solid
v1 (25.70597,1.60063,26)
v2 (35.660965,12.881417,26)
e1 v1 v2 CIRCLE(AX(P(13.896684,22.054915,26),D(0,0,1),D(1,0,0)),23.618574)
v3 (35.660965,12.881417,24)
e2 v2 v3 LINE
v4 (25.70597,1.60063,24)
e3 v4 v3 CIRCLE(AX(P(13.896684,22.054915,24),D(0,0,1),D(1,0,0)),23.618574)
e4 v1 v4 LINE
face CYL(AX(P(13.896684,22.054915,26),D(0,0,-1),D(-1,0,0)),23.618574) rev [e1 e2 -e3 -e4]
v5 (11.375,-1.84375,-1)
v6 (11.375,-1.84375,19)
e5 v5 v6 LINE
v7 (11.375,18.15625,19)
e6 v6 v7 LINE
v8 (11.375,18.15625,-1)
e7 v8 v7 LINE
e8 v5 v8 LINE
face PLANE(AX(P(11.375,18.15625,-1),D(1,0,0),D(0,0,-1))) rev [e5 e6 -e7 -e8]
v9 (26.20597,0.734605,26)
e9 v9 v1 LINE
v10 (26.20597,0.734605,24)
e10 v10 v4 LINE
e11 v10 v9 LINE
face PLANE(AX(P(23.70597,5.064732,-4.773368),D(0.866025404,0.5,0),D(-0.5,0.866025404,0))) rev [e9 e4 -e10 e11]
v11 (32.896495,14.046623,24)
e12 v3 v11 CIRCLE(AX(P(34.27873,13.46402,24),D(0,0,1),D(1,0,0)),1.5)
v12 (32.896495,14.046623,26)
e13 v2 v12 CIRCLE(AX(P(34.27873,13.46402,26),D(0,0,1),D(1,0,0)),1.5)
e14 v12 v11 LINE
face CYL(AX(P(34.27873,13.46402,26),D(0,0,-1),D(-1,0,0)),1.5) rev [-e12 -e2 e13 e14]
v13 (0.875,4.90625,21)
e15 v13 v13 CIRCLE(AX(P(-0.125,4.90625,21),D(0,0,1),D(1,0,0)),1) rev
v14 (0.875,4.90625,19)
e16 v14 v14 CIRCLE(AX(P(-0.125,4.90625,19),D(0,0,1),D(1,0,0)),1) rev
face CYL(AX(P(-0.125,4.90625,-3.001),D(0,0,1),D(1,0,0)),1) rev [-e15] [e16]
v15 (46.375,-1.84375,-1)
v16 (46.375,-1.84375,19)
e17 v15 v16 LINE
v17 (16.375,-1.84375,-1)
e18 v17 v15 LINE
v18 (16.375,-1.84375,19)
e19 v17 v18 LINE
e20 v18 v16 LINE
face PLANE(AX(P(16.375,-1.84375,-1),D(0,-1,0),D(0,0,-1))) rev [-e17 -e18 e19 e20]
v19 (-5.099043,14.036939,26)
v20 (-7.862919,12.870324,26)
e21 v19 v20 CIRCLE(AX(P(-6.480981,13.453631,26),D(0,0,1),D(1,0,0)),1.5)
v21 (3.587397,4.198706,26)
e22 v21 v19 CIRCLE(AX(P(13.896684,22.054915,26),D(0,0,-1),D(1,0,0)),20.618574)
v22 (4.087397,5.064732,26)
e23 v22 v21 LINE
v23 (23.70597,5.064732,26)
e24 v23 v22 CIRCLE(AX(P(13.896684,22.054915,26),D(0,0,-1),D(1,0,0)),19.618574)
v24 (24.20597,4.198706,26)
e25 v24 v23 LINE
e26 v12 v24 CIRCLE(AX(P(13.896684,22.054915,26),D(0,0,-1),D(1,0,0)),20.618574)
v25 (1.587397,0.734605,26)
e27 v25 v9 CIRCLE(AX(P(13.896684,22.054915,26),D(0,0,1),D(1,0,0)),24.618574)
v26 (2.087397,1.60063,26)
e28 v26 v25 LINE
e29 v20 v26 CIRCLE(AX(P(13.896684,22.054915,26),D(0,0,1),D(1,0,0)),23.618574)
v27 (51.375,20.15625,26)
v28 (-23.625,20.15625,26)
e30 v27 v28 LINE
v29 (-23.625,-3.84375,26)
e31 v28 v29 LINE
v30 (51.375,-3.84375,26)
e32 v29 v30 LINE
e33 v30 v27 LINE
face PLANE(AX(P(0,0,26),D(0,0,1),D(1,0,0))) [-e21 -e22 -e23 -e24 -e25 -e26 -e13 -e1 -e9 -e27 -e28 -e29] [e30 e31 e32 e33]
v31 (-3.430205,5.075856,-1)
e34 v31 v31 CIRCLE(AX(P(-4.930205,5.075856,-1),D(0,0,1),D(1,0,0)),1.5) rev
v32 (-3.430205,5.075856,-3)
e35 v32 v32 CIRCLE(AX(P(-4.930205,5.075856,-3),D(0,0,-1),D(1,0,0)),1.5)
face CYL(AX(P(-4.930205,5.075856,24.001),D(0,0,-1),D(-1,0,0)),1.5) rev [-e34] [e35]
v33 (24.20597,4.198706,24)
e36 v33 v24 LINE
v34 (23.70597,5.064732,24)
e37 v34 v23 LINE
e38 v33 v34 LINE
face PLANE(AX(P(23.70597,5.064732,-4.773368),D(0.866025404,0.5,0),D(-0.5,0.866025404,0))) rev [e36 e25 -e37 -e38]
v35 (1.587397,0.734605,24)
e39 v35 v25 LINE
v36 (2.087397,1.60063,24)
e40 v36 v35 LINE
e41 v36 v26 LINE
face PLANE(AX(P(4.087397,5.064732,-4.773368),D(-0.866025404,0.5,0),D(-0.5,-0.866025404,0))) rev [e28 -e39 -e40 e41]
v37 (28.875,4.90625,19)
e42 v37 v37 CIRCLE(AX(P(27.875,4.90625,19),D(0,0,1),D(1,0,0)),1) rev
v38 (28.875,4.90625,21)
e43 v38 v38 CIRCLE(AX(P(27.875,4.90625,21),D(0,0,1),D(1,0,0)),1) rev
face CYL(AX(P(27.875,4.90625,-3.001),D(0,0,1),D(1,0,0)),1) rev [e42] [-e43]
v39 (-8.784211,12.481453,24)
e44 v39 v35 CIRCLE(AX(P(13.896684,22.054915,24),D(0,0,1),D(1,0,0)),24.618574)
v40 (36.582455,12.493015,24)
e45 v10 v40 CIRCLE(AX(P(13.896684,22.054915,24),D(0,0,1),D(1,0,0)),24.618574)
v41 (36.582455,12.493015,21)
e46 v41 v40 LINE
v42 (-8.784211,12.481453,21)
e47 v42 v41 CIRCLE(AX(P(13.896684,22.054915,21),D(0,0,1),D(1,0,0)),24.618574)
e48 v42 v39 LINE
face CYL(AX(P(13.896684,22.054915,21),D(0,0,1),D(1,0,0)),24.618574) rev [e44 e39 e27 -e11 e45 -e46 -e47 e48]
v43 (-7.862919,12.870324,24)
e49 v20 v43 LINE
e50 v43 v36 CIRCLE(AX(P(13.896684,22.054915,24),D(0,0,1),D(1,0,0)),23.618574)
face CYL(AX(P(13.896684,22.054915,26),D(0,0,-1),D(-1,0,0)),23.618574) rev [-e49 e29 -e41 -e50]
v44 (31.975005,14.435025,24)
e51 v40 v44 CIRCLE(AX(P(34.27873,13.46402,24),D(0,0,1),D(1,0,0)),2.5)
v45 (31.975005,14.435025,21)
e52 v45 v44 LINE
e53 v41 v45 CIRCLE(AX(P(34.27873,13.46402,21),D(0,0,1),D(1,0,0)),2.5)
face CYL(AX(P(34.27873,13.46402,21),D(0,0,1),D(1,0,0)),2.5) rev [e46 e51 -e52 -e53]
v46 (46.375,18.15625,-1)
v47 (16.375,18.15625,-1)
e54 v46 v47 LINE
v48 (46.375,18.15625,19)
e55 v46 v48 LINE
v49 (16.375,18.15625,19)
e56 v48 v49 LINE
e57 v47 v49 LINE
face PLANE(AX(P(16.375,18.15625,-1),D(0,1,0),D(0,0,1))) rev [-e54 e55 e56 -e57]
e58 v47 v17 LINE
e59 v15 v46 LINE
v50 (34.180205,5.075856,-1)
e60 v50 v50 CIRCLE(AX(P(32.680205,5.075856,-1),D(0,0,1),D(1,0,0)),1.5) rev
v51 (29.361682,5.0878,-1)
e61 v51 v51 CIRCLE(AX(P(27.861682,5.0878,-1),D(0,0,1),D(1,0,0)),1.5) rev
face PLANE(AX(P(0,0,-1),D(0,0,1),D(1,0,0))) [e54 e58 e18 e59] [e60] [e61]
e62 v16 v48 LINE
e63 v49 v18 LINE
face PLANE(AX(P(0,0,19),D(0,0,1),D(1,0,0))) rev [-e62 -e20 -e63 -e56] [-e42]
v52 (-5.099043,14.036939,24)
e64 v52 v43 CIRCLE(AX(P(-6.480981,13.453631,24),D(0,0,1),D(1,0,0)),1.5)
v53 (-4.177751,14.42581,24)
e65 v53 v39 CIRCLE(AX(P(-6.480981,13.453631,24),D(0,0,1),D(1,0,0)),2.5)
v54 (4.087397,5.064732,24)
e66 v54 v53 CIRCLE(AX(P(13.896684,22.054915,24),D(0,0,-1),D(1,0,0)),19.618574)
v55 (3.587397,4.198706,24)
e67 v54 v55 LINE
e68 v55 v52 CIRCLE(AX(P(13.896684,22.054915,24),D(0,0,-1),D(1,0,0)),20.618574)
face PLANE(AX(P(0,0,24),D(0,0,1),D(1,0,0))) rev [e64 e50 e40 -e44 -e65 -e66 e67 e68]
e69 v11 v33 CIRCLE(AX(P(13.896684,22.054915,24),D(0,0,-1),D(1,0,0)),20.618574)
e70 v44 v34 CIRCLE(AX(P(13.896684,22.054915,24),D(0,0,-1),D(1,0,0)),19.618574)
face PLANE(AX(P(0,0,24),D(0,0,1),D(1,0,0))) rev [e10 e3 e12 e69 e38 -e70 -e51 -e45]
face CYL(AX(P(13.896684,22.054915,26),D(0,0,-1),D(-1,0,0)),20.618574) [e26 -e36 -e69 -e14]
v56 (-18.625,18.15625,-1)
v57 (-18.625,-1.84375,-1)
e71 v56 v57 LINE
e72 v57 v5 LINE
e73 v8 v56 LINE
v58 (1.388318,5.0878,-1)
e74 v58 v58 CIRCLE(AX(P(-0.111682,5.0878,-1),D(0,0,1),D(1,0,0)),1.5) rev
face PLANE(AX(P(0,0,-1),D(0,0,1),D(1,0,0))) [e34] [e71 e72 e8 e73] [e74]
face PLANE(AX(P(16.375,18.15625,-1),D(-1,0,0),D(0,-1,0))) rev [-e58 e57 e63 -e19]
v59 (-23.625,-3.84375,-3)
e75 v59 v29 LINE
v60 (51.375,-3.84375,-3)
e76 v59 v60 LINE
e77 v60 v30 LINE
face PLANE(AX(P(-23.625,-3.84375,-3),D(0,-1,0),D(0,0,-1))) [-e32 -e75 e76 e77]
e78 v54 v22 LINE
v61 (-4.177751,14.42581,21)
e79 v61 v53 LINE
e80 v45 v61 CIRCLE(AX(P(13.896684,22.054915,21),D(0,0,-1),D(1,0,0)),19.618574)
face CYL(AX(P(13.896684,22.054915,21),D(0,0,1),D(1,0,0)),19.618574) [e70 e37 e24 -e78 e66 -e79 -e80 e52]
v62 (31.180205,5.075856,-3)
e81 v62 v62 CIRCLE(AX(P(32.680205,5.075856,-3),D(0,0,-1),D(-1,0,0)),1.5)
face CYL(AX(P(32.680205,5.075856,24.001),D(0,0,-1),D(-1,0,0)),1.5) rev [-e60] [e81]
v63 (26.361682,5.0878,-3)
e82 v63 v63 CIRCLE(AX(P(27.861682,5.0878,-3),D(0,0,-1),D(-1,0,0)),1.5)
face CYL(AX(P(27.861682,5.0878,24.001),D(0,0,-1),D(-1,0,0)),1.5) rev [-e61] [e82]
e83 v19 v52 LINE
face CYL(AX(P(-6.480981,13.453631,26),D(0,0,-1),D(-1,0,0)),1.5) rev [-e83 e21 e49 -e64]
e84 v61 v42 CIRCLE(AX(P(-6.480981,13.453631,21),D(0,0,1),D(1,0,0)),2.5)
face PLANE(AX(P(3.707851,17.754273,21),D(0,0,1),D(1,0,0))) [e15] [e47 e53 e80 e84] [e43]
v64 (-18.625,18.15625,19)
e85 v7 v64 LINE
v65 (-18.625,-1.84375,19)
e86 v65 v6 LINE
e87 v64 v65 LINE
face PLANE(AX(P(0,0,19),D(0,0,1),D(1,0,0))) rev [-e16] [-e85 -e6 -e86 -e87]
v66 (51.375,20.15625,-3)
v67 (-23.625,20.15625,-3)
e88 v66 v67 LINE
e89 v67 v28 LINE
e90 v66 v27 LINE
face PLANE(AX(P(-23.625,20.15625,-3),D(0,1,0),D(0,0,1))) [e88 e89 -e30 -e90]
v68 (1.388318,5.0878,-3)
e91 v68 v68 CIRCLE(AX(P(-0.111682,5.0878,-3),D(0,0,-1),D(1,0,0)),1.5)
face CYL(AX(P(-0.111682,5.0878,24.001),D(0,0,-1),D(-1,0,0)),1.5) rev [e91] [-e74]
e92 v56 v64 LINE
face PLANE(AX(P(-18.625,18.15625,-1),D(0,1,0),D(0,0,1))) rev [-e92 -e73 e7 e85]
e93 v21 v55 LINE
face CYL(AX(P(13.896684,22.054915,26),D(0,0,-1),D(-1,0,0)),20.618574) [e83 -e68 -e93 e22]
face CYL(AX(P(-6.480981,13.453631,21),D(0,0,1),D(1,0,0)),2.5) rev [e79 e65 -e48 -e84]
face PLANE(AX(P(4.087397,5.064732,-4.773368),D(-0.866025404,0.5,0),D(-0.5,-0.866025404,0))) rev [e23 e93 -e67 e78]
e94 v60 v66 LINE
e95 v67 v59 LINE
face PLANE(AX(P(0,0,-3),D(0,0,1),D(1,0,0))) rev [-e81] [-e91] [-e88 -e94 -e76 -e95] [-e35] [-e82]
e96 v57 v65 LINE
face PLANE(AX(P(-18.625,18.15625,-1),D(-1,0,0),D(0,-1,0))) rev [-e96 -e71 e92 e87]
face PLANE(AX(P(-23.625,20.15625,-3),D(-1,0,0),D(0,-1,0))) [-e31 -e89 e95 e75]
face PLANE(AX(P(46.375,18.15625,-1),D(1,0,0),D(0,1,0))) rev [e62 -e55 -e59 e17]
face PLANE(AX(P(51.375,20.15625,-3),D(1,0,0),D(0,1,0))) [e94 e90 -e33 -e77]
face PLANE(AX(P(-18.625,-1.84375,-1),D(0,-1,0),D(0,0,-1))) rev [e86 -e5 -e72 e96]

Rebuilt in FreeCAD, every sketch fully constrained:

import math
import FreeCAD as App
import Part
import Sketcher
from FreeCAD import Vector
Q = App.Units.Quantity

doc = App.newDocument("Part")
body = doc.addObject("PartDesign::Body", "Body")

# Sketch on XY plane
sketch1 = body.newObject("Sketcher::SketchObject", "Sketch")
sketch1.AttachmentSupport = (doc.getObject("XY_Plane"), [""])
sketch1.MapMode = "FlatFace"
sketch1.addGeometry(Part.LineSegment(Vector(-24, 20, 0), Vector(-24, -4, 0)), False)
sketch1.addGeometry(Part.LineSegment(Vector(-24, -4, 0), Vector(51, -4, 0)), False)
sketch1.addGeometry(Part.LineSegment(Vector(51, -4, 0), Vector(51, 20, 0)), False)
sketch1.addGeometry(Part.LineSegment(Vector(51, 20, 0), Vector(-24, 20, 0)), False)
sketch1.addConstraint(Sketcher.Constraint("Coincident", 0, 2, 1, 1))
sketch1.addConstraint(Sketcher.Constraint("Coincident", 1, 2, 2, 1))
sketch1.addConstraint(Sketcher.Constraint("Coincident", 2, 2, 3, 1))
sketch1.addConstraint(Sketcher.Constraint("Coincident", 3, 2, 0, 1))
sketch1.addConstraint(Sketcher.Constraint("Vertical", 0))
sketch1.addConstraint(Sketcher.Constraint("Horizontal", 1))
sketch1.addConstraint(Sketcher.Constraint("Vertical", 2))
sketch1.addConstraint(Sketcher.Constraint("Horizontal", 3))
sketch1.addConstraint(Sketcher.Constraint("DistanceX", 1, 1, 1, 2, 75.0))
sketch1.addConstraint(Sketcher.Constraint("DistanceY", 0, 2, 0, 1, 24.0))
sketch1.addConstraint(Sketcher.Constraint("DistanceX", 0, 2, -1, 1, 23.625))
sketch1.addConstraint(Sketcher.Constraint("DistanceY", 0, 2, -1, 1, 3.84375))
pad1 = body.newObject("PartDesign::Pad", "Pad")
pad1.Profile = sketch1
pad1.Type = "TwoLengths"
pad1.Length = 24
pad1.Length2 = 3

# Sketch on XY plane
sketch2 = body.newObject("Sketcher::SketchObject", "Sketch001")
sketch2.AttachmentSupport = (doc.getObject("XY_Plane"), [""])
sketch2.MapMode = "FlatFace"
sketch2.AttachmentOffset = App.Placement(Vector(0, 0, 19), App.Rotation())
sketch2.addGeometry(Part.LineSegment(Vector(-19, 18, 0), Vector(-19, -2, 0)), False)
sketch2.addGeometry(Part.LineSegment(Vector(-19, -2, 0), Vector(11, -2, 0)), False)
sketch2.addGeometry(Part.LineSegment(Vector(11, -2, 0), Vector(11, 18, 0)), False)
sketch2.addGeometry(Part.LineSegment(Vector(11, 18, 0), Vector(-19, 18, 0)), False)
sketch2.addGeometry(Part.LineSegment(Vector(16, 18, 0), Vector(16, -2, 0)), False)
sketch2.addGeometry(Part.LineSegment(Vector(16, -2, 0), Vector(46, -2, 0)), False)
sketch2.addGeometry(Part.LineSegment(Vector(46, -2, 0), Vector(46, 18, 0)), False)
sketch2.addGeometry(Part.LineSegment(Vector(46, 18, 0), Vector(16, 18, 0)), False)
sketch2.addConstraint(Sketcher.Constraint("Coincident", 0, 2, 1, 1))
sketch2.addConstraint(Sketcher.Constraint("Coincident", 1, 2, 2, 1))
sketch2.addConstraint(Sketcher.Constraint("Coincident", 2, 2, 3, 1))
sketch2.addConstraint(Sketcher.Constraint("Coincident", 3, 2, 0, 1))
sketch2.addConstraint(Sketcher.Constraint("Coincident", 4, 2, 5, 1))
sketch2.addConstraint(Sketcher.Constraint("Coincident", 5, 2, 6, 1))
sketch2.addConstraint(Sketcher.Constraint("Coincident", 6, 2, 7, 1))
sketch2.addConstraint(Sketcher.Constraint("Coincident", 7, 2, 4, 1))
sketch2.addConstraint(Sketcher.Constraint("Vertical", 0))
sketch2.addConstraint(Sketcher.Constraint("Horizontal", 1))
sketch2.addConstraint(Sketcher.Constraint("Vertical", 2))
sketch2.addConstraint(Sketcher.Constraint("Horizontal", 3))
sketch2.addConstraint(Sketcher.Constraint("Vertical", 4))
sketch2.addConstraint(Sketcher.Constraint("Horizontal", 5))
sketch2.addConstraint(Sketcher.Constraint("Vertical", 6))
sketch2.addConstraint(Sketcher.Constraint("Horizontal", 7))
sketch2.addConstraint(Sketcher.Constraint("Horizontal", 1, 2, 4, 2))
sketch2.addConstraint(Sketcher.Constraint("Horizontal", 3, 2, 6, 2))
sketch2.addConstraint(Sketcher.Constraint("Equal", 3, 5))
sketch2.addConstraint(Sketcher.Constraint("DistanceX", 1, 1, 1, 2, 30.0))
sketch2.addConstraint(Sketcher.Constraint("DistanceY", 0, 2, 0, 1, 20.0))
sketch2.addConstraint(Sketcher.Constraint("DistanceX", 1, 2, 4, 2, 5.0))
sketch2.addConstraint(Sketcher.Constraint("DistanceX", 0, 2, -1, 1, 18.625))
sketch2.addConstraint(Sketcher.Constraint("DistanceY", 0, 2, -1, 1, 1.84375))
pocket1 = body.newObject("PartDesign::Pocket", "Pocket")
pocket1.Profile = sketch2
pocket1.Length = 20

# Sketch on XY plane
sketch3 = body.newObject("Sketcher::SketchObject", "Sketch002")
sketch3.AttachmentSupport = (doc.getObject("XY_Plane"), [""])
sketch3.MapMode = "FlatFace"
sketch3.AttachmentOffset = App.Placement(Vector(0, 0, 24), App.Rotation())
sketch3.addGeometry(Part.ArcOfCircle(Part.Circle(Vector(13.9, 22.1, 0), Vector(0, 0, 1), 24.6), math.radians(-157), math.radians(-23)), False)
sketch3.addGeometry(Part.ArcOfCircle(Part.Circle(Vector(34.3, 13.5, 0), Vector(0, 0, 1), 2.5), math.radians(-23), math.radians(157)), False)
sketch3.addGeometry(Part.ArcOfCircle(Part.Circle(Vector(13.9, 22.1, 0), Vector(0, 0, 1), 19.6), math.radians(-157), math.radians(-23)), False)
sketch3.addGeometry(Part.ArcOfCircle(Part.Circle(Vector(-6.5, 13.5, 0), Vector(0, 0, 1), 2.5), math.radians(23), math.radians(203)), False)
sketch3.addConstraint(Sketcher.Constraint("Tangent", 0, 2, 1, 1))
sketch3.addConstraint(Sketcher.Constraint("Tangent", 1, 2, 2, 2))
sketch3.addConstraint(Sketcher.Constraint("Tangent", 2, 1, 3, 1))
sketch3.addConstraint(Sketcher.Constraint("Tangent", 3, 2, 0, 1))
sketch3.addConstraint(Sketcher.Constraint("Coincident", 2, 3, 0, 3))
sketch3.addConstraint(Sketcher.Constraint("Radius", 1, 2.5))
sketch3.addConstraint(Sketcher.Constraint("Radius", 0, 24.618574))
sketch3.addConstraint(Sketcher.Constraint("DistanceY", 0, 2, 2, 3, 9.5619))
sketch3.addConstraint(Sketcher.Constraint("DistanceX", -1, 1, 1, 3, 34.27873))
sketch3.addConstraint(Sketcher.Constraint("DistanceY", -1, 1, 1, 3, 13.46402))
sketch3.addConstraint(Sketcher.Constraint("DistanceX", 3, 3, -1, 1, 6.480981))
pocket2 = body.newObject("PartDesign::Pocket", "Pocket001")
pocket2.Profile = sketch3
pocket2.Length = 3

# Sketch on XY plane
sketch4 = body.newObject("Sketcher::SketchObject", "Sketch003")
sketch4.AttachmentSupport = (doc.getObject("XY_Plane"), [""])
sketch4.MapMode = "FlatFace"
sketch4.AttachmentOffset = App.Placement(Vector(0, 0, 24), App.Rotation())
sketch4.addGeometry(Part.Circle(Vector(27.9, 4.9, 0), Vector(0, 0, 1), 1), False)
sketch4.addConstraint(Sketcher.Constraint("Diameter", 0, 2.0))
sketch4.addConstraint(Sketcher.Constraint("DistanceX", -1, 1, 0, 3, 27.875))
sketch4.addConstraint(Sketcher.Constraint("DistanceY", -1, 1, 0, 3, 4.90625))
pocket3 = body.newObject("PartDesign::Pocket", "Pocket002")
pocket3.Profile = sketch4
pocket3.Length = 5

# Sketch on XY plane
sketch5 = body.newObject("Sketcher::SketchObject", "Sketch004")
sketch5.AttachmentSupport = (doc.getObject("XY_Plane"), [""])
sketch5.MapMode = "FlatFace"
sketch5.AttachmentOffset = App.Placement(Vector(0, 0, 24), App.Rotation())
sketch5.addGeometry(Part.Circle(Vector(-0.1, 4.9, 0), Vector(0, 0, 1), 1), False)
sketch5.addConstraint(Sketcher.Constraint("Diameter", 0, 2.0))
sketch5.addConstraint(Sketcher.Constraint("DistanceX", 0, 3, -1, 1, 0.125))
sketch5.addConstraint(Sketcher.Constraint("DistanceY", -1, 1, 0, 3, 4.90625))
pocket4 = body.newObject("PartDesign::Pocket", "Pocket003")
pocket4.Profile = sketch5
pocket4.Length = 5

# Sketch on XY plane
sketch6 = body.newObject("Sketcher::SketchObject", "Sketch005")
sketch6.AttachmentSupport = (doc.getObject("XY_Plane"), [""])
sketch6.MapMode = "FlatFace"
sketch6.AttachmentOffset = App.Placement(Vector(0, 0, -3), App.Rotation())
sketch6.addGeometry(Part.Circle(Vector(32.7, 5.1, 0), Vector(0, 0, 1), 1.5), False)
sketch6.addConstraint(Sketcher.Constraint("Diameter", 0, 3.0))
sketch6.addConstraint(Sketcher.Constraint("DistanceX", -1, 1, 0, 3, 32.680205))
sketch6.addConstraint(Sketcher.Constraint("DistanceY", -1, 1, 0, 3, 5.075856))
pocket5 = body.newObject("PartDesign::Pocket", "Pocket004")
pocket5.Profile = sketch6
pocket5.Type = "UpToFirst"
pocket5.Reversed = True

# Sketch on XY plane
sketch7 = body.newObject("Sketcher::SketchObject", "Sketch006")
sketch7.AttachmentSupport = (doc.getObject("XY_Plane"), [""])
sketch7.MapMode = "FlatFace"
sketch7.AttachmentOffset = App.Placement(Vector(0, 0, -3), App.Rotation())
sketch7.addGeometry(Part.Circle(Vector(27.9, 5.1, 0), Vector(0, 0, 1), 1.5), False)
sketch7.addConstraint(Sketcher.Constraint("Diameter", 0, 3.0))
sketch7.addConstraint(Sketcher.Constraint("DistanceY", -1, 1, 0, 3, 5.0878))
sketch7.addConstraint(Sketcher.Constraint("DistanceX", -1, 1, 0, 3, 27.861682))
pocket6 = body.newObject("PartDesign::Pocket", "Pocket005")
pocket6.Profile = sketch7
pocket6.Type = "UpToFirst"
pocket6.Reversed = True

# Sketch on XY plane
sketch8 = body.newObject("Sketcher::SketchObject", "Sketch007")
sketch8.AttachmentSupport = (doc.getObject("XY_Plane"), [""])
sketch8.MapMode = "FlatFace"
sketch8.AttachmentOffset = App.Placement(Vector(0, 0, -3), App.Rotation())
sketch8.addGeometry(Part.Circle(Vector(-0.1, 5.1, 0), Vector(0, 0, 1), 1.5), False)
sketch8.addConstraint(Sketcher.Constraint("Diameter", 0, 3.0))
sketch8.addConstraint(Sketcher.Constraint("DistanceY", -1, 1, 0, 3, 5.0878))
sketch8.addConstraint(Sketcher.Constraint("DistanceX", 0, 3, -1, 1, 0.111682))
pocket7 = body.newObject("PartDesign::Pocket", "Pocket006")
pocket7.Profile = sketch8
pocket7.Type = "UpToFirst"
pocket7.Reversed = True

# Sketch on XY plane
sketch9 = body.newObject("Sketcher::SketchObject", "Sketch008")
sketch9.AttachmentSupport = (doc.getObject("XY_Plane"), [""])
sketch9.MapMode = "FlatFace"
sketch9.AttachmentOffset = App.Placement(Vector(0, 0, -3), App.Rotation())
sketch9.addGeometry(Part.Circle(Vector(-4.9, 5.1, 0), Vector(0, 0, 1), 1.5), False)
sketch9.addConstraint(Sketcher.Constraint("Diameter", 0, 3.0))
sketch9.addConstraint(Sketcher.Constraint("DistanceX", 0, 3, -1, 1, 4.930205))
sketch9.addConstraint(Sketcher.Constraint("DistanceY", -1, 1, 0, 3, 5.075856))
pocket8 = body.newObject("PartDesign::Pocket", "Pocket007")
pocket8.Profile = sketch9
pocket8.Type = "UpToFirst"
pocket8.Reversed = True

# Sketch on XY plane
sketch10 = body.newObject("Sketcher::SketchObject", "Sketch009")
sketch10.AttachmentSupport = (doc.getObject("XY_Plane"), [""])
sketch10.MapMode = "FlatFace"
sketch10.AttachmentOffset = App.Placement(Vector(0, 0, 24), App.Rotation())
sketch10.addGeometry(Part.LineSegment(Vector(-23.6, 20.2, 0), Vector(-23.6, -3.8, 0)), False)
sketch10.addGeometry(Part.LineSegment(Vector(-23.6, -3.8, 0), Vector(51.4, -3.8, 0)), False)
sketch10.addGeometry(Part.LineSegment(Vector(51.4, -3.8, 0), Vector(51.4, 20.2, 0)), False)
sketch10.addGeometry(Part.LineSegment(Vector(51.4, 20.2, 0), Vector(-23.6, 20.2, 0)), False)
sketch10.addGeometry(Part.ArcOfCircle(Part.Circle(Vector(13.9, 22.1, 0), Vector(0, 0, 1), 23.6), math.radians(-157), math.radians(-23)), False)
sketch10.addGeometry(Part.ArcOfCircle(Part.Circle(Vector(-6.5, 13.5, 0), Vector(0, 0, 1), 1.5), math.radians(23), math.radians(203)), False)
sketch10.addGeometry(Part.ArcOfCircle(Part.Circle(Vector(13.9, 22.1, 0), Vector(0, 0, 1), 20.6), math.radians(-157), math.radians(-23)), False)
sketch10.addGeometry(Part.ArcOfCircle(Part.Circle(Vector(34.3, 13.5, 0), Vector(0, 0, 1), 1.5), math.radians(-23), math.radians(157)), False)
sketch10.addConstraint(Sketcher.Constraint("Coincident", 0, 2, 1, 1))
sketch10.addConstraint(Sketcher.Constraint("Coincident", 1, 2, 2, 1))
sketch10.addConstraint(Sketcher.Constraint("Coincident", 2, 2, 3, 1))
sketch10.addConstraint(Sketcher.Constraint("Coincident", 3, 2, 0, 1))
sketch10.addConstraint(Sketcher.Constraint("Tangent", 4, 1, 5, 2))
sketch10.addConstraint(Sketcher.Constraint("Tangent", 5, 1, 6, 1))
sketch10.addConstraint(Sketcher.Constraint("Tangent", 6, 2, 7, 2))
sketch10.addConstraint(Sketcher.Constraint("Tangent", 7, 1, 4, 2))
sketch10.addConstraint(Sketcher.Constraint("Vertical", 0))
sketch10.addConstraint(Sketcher.Constraint("Horizontal", 1))
sketch10.addConstraint(Sketcher.Constraint("Vertical", 2))
sketch10.addConstraint(Sketcher.Constraint("Horizontal", 3))
sketch10.addConstraint(Sketcher.Constraint("Coincident", 6, 3, 4, 3))
sketch10.addConstraint(Sketcher.Constraint("Radius", 5, 1.5))
sketch10.addConstraint(Sketcher.Constraint("DistanceX", 1, 1, 1, 2, 75.0))
sketch10.addConstraint(Sketcher.Constraint("DistanceY", 0, 2, 0, 1, 24.0))
sketch10.addConstraint(Sketcher.Constraint("DistanceX", 0, 2, -1, 1, 23.625))
sketch10.addConstraint(Sketcher.Constraint("Radius", 4, 23.618574))
sketch10.addConstraint(Sketcher.Constraint("DistanceX", 5, 3, -1, 1, 6.480981))
sketch10.addConstraint(Sketcher.Constraint("DistanceY", -1, 1, 5, 3, 13.453631))
sketch10.addConstraint(Sketcher.Constraint("DistanceX", -1, 1, 7, 3, 34.27873))
sketch10.addConstraint(Sketcher.Constraint("DistanceY", -1, 1, 7, 3, 13.46402))
sketch10.addConstraint(Sketcher.Constraint("DistanceY", 0, 2, -1, 1, 3.84375))
pad2 = body.newObject("PartDesign::Pad", "Pad001")
pad2.Profile = sketch10
pad2.Length = 2

# Sketch on XY plane
sketch11 = body.newObject("Sketcher::SketchObject", "Sketch010")
sketch11.AttachmentSupport = (doc.getObject("XY_Plane"), [""])
sketch11.MapMode = "FlatFace"
sketch11.AttachmentOffset = App.Placement(Vector(0, 0, 26), App.Rotation())
sketch11.addGeometry(Part.LineSegment(Vector(26, 1, 0), Vector(24, 5, 0)), False)
sketch11.addGeometry(Part.ArcOfCircle(Part.Circle(Vector(14, 22, 0), Vector(0, 0, 1), 20), math.radians(-120), math.radians(-60)), False)
sketch11.addGeometry(Part.LineSegment(Vector(4, 5, 0), Vector(2, 1, 0)), False)
sketch11.addGeometry(Part.ArcOfCircle(Part.Circle(Vector(14, 22, 0), Vector(0, 0, 1), 25), math.radians(-120), math.radians(-60)), False)
sketch11.addConstraint(Sketcher.Constraint("Coincident", 0, 2, 1, 2))
sketch11.addConstraint(Sketcher.Constraint("Coincident", 1, 1, 2, 1))
sketch11.addConstraint(Sketcher.Constraint("Coincident", 2, 2, 3, 1))
sketch11.addConstraint(Sketcher.Constraint("Coincident", 3, 2, 0, 1))
sketch11.addConstraint(Sketcher.Constraint("Coincident", 3, 3, 1, 3))
sketch11.addConstraint(Sketcher.Constraint("Horizontal", 0, 2, 1, 1))
sketch11.addConstraint(Sketcher.Constraint("Horizontal", 2, 2, 3, 2))
sketch11.addConstraint(Sketcher.Constraint("Angle", 0, Q("120 deg")))
sketch11.addConstraint(Sketcher.Constraint("Distance", 0, 5.0))
sketch11.addConstraint(Sketcher.Constraint("Radius", 1, 19.618574))
sketch11.addConstraint(Sketcher.Constraint("DistanceX", -1, 1, 0, 2, 23.70597))
sketch11.addConstraint(Sketcher.Constraint("DistanceY", -1, 1, 0, 2, 5.064732))
sketch11.addConstraint(Sketcher.Constraint("DistanceY", 2, 2, 1, 3, 21.32031))
pocket9 = body.newObject("PartDesign::Pocket", "Pocket008")
pocket9.Profile = sketch11
pocket9.Length = 5

doc.recompute()
